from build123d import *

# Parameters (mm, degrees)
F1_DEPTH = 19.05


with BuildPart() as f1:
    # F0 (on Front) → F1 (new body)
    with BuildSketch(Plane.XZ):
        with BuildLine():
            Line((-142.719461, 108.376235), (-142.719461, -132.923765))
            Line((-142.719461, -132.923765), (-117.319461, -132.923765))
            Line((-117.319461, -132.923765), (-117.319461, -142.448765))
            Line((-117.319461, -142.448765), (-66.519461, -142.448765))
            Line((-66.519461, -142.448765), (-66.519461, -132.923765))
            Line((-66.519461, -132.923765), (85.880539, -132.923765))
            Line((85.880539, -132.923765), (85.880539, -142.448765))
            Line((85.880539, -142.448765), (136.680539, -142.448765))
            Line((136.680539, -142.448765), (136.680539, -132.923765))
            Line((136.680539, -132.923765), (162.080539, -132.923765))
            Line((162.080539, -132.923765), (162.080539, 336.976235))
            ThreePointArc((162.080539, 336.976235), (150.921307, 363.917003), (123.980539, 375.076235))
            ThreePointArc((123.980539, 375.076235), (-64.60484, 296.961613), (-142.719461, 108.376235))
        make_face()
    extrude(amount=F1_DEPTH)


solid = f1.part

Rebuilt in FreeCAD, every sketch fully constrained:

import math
import FreeCAD as App
import Part
import Sketcher
Q = App.Units.Quantity

doc = App.newDocument("Part")
body = doc.addObject("PartDesign::Body", "Body")

sketch1 = doc.addObject("Sketcher::SketchObject", "Sketch")
body.addObject(sketch1)
sketch1.AttachmentSupport = (doc.XZ_Plane, [""])
sketch1.MapMode = "FlatFace"
sketch1.addGeometry(Part.LineSegment(App.Vector(-143, 108, 0), App.Vector(-143, -133, 0)), False)
sketch1.addGeometry(Part.LineSegment(App.Vector(-143, -133, 0), App.Vector(-117, -133, 0)), False)
sketch1.addGeometry(Part.LineSegment(App.Vector(-117, -133, 0), App.Vector(-117, -142, 0)), False)
sketch1.addGeometry(Part.LineSegment(App.Vector(-117, -142, 0), App.Vector(-67, -142, 0)), False)
sketch1.addGeometry(Part.LineSegment(App.Vector(-67, -142, 0), App.Vector(-67, -133, 0)), False)
sketch1.addGeometry(Part.LineSegment(App.Vector(-67, -133, 0), App.Vector(86, -133, 0)), False)
sketch1.addGeometry(Part.LineSegment(App.Vector(86, -133, 0), App.Vector(86, -142, 0)), False)
sketch1.addGeometry(Part.LineSegment(App.Vector(86, -142, 0), App.Vector(137, -142, 0)), False)
sketch1.addGeometry(Part.LineSegment(App.Vector(137, -142, 0), App.Vector(137, -133, 0)), False)
sketch1.addGeometry(Part.LineSegment(App.Vector(137, -133, 0), App.Vector(162, -133, 0)), False)
sketch1.addGeometry(Part.LineSegment(App.Vector(162, -133, 0), App.Vector(162, 337, 0)), False)
sketch1.addGeometry(Part.ArcOfCircle(Part.Circle(App.Vector(124, 337, 0), App.Vector(0, 0, 1), 38), math.radians(0), math.radians(90)), False)
sketch1.addGeometry(Part.ArcOfCircle(Part.Circle(App.Vector(124, 108, 0), App.Vector(0, 0, 1), 267), math.radians(90), math.radians(180)), False)
sketch1.addConstraint(Sketcher.Constraint("Coincident", 0, 2, 1, 1))
sketch1.addConstraint(Sketcher.Constraint("Coincident", 1, 2, 2, 1))
sketch1.addConstraint(Sketcher.Constraint("Coincident", 2, 2, 3, 1))
sketch1.addConstraint(Sketcher.Constraint("Coincident", 3, 2, 4, 1))
sketch1.addConstraint(Sketcher.Constraint("Coincident", 4, 2, 5, 1))
sketch1.addConstraint(Sketcher.Constraint("Coincident", 5, 2, 6, 1))
sketch1.addConstraint(Sketcher.Constraint("Coincident", 6, 2, 7, 1))
sketch1.addConstraint(Sketcher.Constraint("Coincident", 7, 2, 8, 1))
sketch1.addConstraint(Sketcher.Constraint("Coincident", 8, 2, 9, 1))
sketch1.addConstraint(Sketcher.Constraint("Coincident", 9, 2, 10, 1))
sketch1.addConstraint(Sketcher.Constraint("Tangent", 10, 2, 11, 1))
sketch1.addConstraint(Sketcher.Constraint("Tangent", 11, 2, 12, 1))
sketch1.addConstraint(Sketcher.Constraint("Tangent", 12, 2, 0, 1))
sketch1.addConstraint(Sketcher.Constraint("Vertical", 0))
sketch1.addConstraint(Sketcher.Constraint("Horizontal", 1))
sketch1.addConstraint(Sketcher.Constraint("Vertical", 2))
sketch1.addConstraint(Sketcher.Constraint("Horizontal", 3))
sketch1.addConstraint(Sketcher.Constraint("Vertical", 4))
sketch1.addConstraint(Sketcher.Constraint("Horizontal", 5))
sketch1.addConstraint(Sketcher.Constraint("Vertical", 6))
sketch1.addConstraint(Sketcher.Constraint("Horizontal", 7))
sketch1.addConstraint(Sketcher.Constraint("Vertical", 8))
sketch1.addConstraint(Sketcher.Constraint("Horizontal", 9))
sketch1.addConstraint(Sketcher.Constraint("Vertical", 10))
sketch1.addConstraint(Sketcher.Constraint("Horizontal", 1, 2, 4, 2))
sketch1.addConstraint(Sketcher.Constraint("Horizontal", 3, 2, 6, 2))
sketch1.addConstraint(Sketcher.Constraint("Horizontal", 5, 2, 8, 2))
sketch1.addConstraint(Sketcher.Constraint("Vertical", 11, 3, 12, 3))
sketch1.addConstraint(Sketcher.Constraint("Equal", 3, 7))
sketch1.addConstraint(Sketcher.Constraint("Equal", 1, 9))
sketch1.addConstraint(Sketcher.Constraint("Radius", 11, Q("1.5 in")))
sketch1.addConstraint(Sketcher.Constraint("Radius", 12, Q("10.5 in")))
sketch1.addConstraint(Sketcher.Constraint("DistanceX", 1, 1, 1, 2, Q("1 in")))
sketch1.addConstraint(Sketcher.Constraint("DistanceX", 3, 1, 3, 2, Q("2 in")))
sketch1.addConstraint(Sketcher.Constraint("DistanceY", 0, 2, 0, 1, Q("9.5 in")))
sketch1.addConstraint(Sketcher.Constraint("DistanceY", 2, 2, 2, 1, Q("0.375 in")))
sketch1.addConstraint(Sketcher.Constraint("DistanceX", -1, 1, 12, 3, Q("123.980539 mm")))
sketch1.addConstraint(Sketcher.Constraint("DistanceY", -1, 1, 11, 3, Q("336.976234 mm")))
pad1 = doc.addObject("PartDesign::Pad", "Pad")
body.addObject(pad1)
pad1.Profile = sketch1
pad1.Length = Q("0.75 in")

doc.recompute()
